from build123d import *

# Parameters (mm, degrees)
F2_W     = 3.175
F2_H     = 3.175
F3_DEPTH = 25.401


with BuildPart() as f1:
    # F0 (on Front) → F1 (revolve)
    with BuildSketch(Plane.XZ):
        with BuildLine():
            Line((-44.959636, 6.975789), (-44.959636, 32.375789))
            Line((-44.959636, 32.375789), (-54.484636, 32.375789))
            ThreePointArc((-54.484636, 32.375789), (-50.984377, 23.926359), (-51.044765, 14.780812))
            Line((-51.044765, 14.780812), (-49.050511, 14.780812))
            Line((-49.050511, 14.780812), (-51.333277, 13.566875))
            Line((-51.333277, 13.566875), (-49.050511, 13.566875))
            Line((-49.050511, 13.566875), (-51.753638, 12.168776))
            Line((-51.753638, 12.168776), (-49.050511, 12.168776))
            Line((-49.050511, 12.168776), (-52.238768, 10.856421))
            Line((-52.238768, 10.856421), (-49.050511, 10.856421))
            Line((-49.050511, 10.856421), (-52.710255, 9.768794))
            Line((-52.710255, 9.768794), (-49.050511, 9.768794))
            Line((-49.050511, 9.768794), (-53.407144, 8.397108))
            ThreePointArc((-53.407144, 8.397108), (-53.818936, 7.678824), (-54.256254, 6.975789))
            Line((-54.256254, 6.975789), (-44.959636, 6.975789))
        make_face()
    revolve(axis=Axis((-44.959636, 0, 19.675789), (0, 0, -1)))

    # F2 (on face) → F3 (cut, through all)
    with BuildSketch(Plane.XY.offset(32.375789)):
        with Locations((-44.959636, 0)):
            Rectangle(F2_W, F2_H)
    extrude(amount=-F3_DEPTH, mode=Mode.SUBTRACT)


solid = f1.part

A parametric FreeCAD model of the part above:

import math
import FreeCAD as App
import Part
import Sketcher
from FreeCAD import Vector
Q = App.Units.Quantity


def add_polygon(sketch, points):
    """Adds a closed chain of lines whose ends are joined by coincident constraints."""
    first, n = sketch.GeometryCount, len(points)
    for a, b in zip(points, points[1:] + points[:1]):
        sketch.addGeometry(Part.LineSegment(App.Vector(*a, 0), App.Vector(*b, 0)), False)
    for i in range(n):
        sketch.addConstraint(Sketcher.Constraint("Coincident", first + i, 2, first + (i + 1) % n, 1))

doc = App.newDocument("Part")
body = doc.addObject("PartDesign::Body", "Body")

sketch1 = doc.addObject("Sketcher::SketchObject", "Sketch")
body.addObject(sketch1)
sketch1.AttachmentSupport = (doc.XZ_Plane, [""])
sketch1.MapMode = "FlatFace"
sketch1.addGeometry(Part.LineSegment(Vector(-45, 7, 0), Vector(-45, 32.4, 0)), False)
sketch1.addGeometry(Part.LineSegment(Vector(-45, 32.4, 0), Vector(-54.5, 32.4, 0)), False)
sketch1.addGeometry(Part.ArcOfCircle(Part.Circle(Vector(-73.6, 19.5, 0), Vector(0, 0, 1), 23.1), math.radians(-12), math.radians(34)), False)
sketch1.addGeometry(Part.LineSegment(Vector(-51, 14.8, 0), Vector(-49.1, 14.8, 0)), False)
sketch1.addGeometry(Part.LineSegment(Vector(-49.1, 14.8, 0), Vector(-51.3, 13.6, 0)), False)
sketch1.addGeometry(Part.LineSegment(Vector(-51.3, 13.6, 0), Vector(-49.1, 13.6, 0)), False)
sketch1.addGeometry(Part.LineSegment(Vector(-49.1, 13.6, 0), Vector(-51.8, 12.2, 0)), False)
sketch1.addGeometry(Part.LineSegment(Vector(-51.8, 12.2, 0), Vector(-49.1, 12.2, 0)), False)
sketch1.addGeometry(Part.LineSegment(Vector(-49.1, 12.2, 0), Vector(-52.2, 10.9, 0)), False)
sketch1.addGeometry(Part.LineSegment(Vector(-52.2, 10.9, 0), Vector(-49.1, 10.9, 0)), False)
sketch1.addGeometry(Part.LineSegment(Vector(-49.1, 10.9, 0), Vector(-52.7, 9.8, 0)), False)
sketch1.addGeometry(Part.LineSegment(Vector(-52.7, 9.8, 0), Vector(-49.1, 9.8, 0)), False)
sketch1.addGeometry(Part.LineSegment(Vector(-49.1, 9.8, 0), Vector(-53.4, 8.4, 0)), False)
sketch1.addGeometry(Part.ArcOfCircle(Part.Circle(Vector(-73.6, 19.5, 0), Vector(0, 0, 1), 23.1), math.radians(-32.91), math.radians(-28.8)), False)
sketch1.addGeometry(Part.LineSegment(Vector(-54.3, 7, 0), Vector(-45, 7, 0)), False)
sketch1.addGeometry(Part.LineSegment(Vector(-45, 32.4, 0), Vector(-45, 7, 0)), True)
sketch1.addConstraint(Sketcher.Constraint("Coincident", 0, 2, 1, 1))
sketch1.addConstraint(Sketcher.Constraint("Coincident", 1, 2, 2, 2))
sketch1.addConstraint(Sketcher.Constraint("Coincident", 2, 1, 3, 1))
sketch1.addConstraint(Sketcher.Constraint("Coincident", 3, 2, 4, 1))
sketch1.addConstraint(Sketcher.Constraint("Coincident", 4, 2, 5, 1))
sketch1.addConstraint(Sketcher.Constraint("Coincident", 5, 2, 6, 1))
sketch1.addConstraint(Sketcher.Constraint("Coincident", 6, 2, 7, 1))
sketch1.addConstraint(Sketcher.Constraint("Coincident", 7, 2, 8, 1))
sketch1.addConstraint(Sketcher.Constraint("Coincident", 8, 2, 9, 1))
sketch1.addConstraint(Sketcher.Constraint("Coincident", 9, 2, 10, 1))
sketch1.addConstraint(Sketcher.Constraint("Coincident", 10, 2, 11, 1))
sketch1.addConstraint(Sketcher.Constraint("Coincident", 11, 2, 12, 1))
sketch1.addConstraint(Sketcher.Constraint("Coincident", 12, 2, 13, 2))
sketch1.addConstraint(Sketcher.Constraint("Coincident", 13, 1, 14, 1))
sketch1.addConstraint(Sketcher.Constraint("Coincident", 14, 2, 0, 1))
sketch1.addConstraint(Sketcher.Constraint("Vertical", 0))
sketch1.addConstraint(Sketcher.Constraint("Horizontal", 1))
sketch1.addConstraint(Sketcher.Constraint("Horizontal", 3))
sketch1.addConstraint(Sketcher.Constraint("Horizontal", 5))
sketch1.addConstraint(Sketcher.Constraint("Horizontal", 7))
sketch1.addConstraint(Sketcher.Constraint("Horizontal", 9))
sketch1.addConstraint(Sketcher.Constraint("Horizontal", 11))
sketch1.addConstraint(Sketcher.Constraint("Horizontal", 14))
sketch1.addConstraint(Sketcher.Constraint("Vertical", 15))
sketch1.addConstraint(Sketcher.Constraint("Coincident", 15, 1, 0, 2))
sketch1.addConstraint(Sketcher.Constraint("Horizontal", 13, 1, 15, 2))
sketch1.addConstraint(Sketcher.Constraint("Vertical", 3, 2, 5, 2))
sketch1.addConstraint(Sketcher.Constraint("Vertical", 5, 2, 7, 2))
sketch1.addConstraint(Sketcher.Constraint("Vertical", 7, 2, 9, 2))
sketch1.addConstraint(Sketcher.Constraint("Vertical", 9, 2, 11, 2))
sketch1.addConstraint(Sketcher.Constraint("DistanceY", 0, 1, 0, 2, Q("1 in")))
sketch1.addConstraint(Sketcher.Constraint("DistanceX", 1, 2, 1, 1, Q("0.375 in")))
sketch1.addConstraint(Sketcher.Constraint("Radius", 2, Q("23.054962 mm")))
sketch1.addConstraint(Sketcher.Constraint("Radius", 13, Q("23.054608 mm")))
sketch1.addConstraint(Sketcher.Constraint("DistanceY", 2, 3, 0, 2, Q("12.873 mm")))
sketch1.addConstraint(Sketcher.Constraint("DistanceY", 6, 2, 4, 2, Q("1.398099 mm")))
sketch1.addConstraint(Sketcher.Constraint("DistanceX", 13, 1, 10, 2, Q("1.545999 mm")))
sketch1.addConstraint(Sketcher.Constraint("Distance", 4, Q("2.585472 mm")))
sketch1.addConstraint(Sketcher.Constraint("Distance", 8, Q("3.44779 mm")))
sketch1.addConstraint(Sketcher.Constraint("Distance", 10, Q("3.817939 mm")))
sketch1.addConstraint(Sketcher.Constraint("Distance", 12, Q("4.567469 mm")))
sketch1.addConstraint(Sketcher.Constraint("DistanceX", 3, 1, 3, 2, Q("1.994254 mm")))
sketch1.addConstraint(Sketcher.Constraint("DistanceX", 5, 1, 5, 2, Q("2.282766 mm")))
sketch1.addConstraint(Sketcher.Constraint("DistanceX", 7, 1, 7, 2, Q("2.703127 mm")))
sketch1.addConstraint(Sketcher.Constraint("DistanceX", 9, 1, 9, 2, Q("3.188257 mm")))
sketch1.addConstraint(Sketcher.Constraint("DistanceX", 11, 1, 11, 2, Q("3.659744 mm")))
sketch1.addConstraint(Sketcher.Constraint("DistanceX", 14, 1, 14, 2, Q("9.296618 mm")))
sketch1.addConstraint(Sketcher.Constraint("DistanceY", -1, 1, 2, 3, Q("19.502789 mm")))
sketch1.addConstraint(Sketcher.Constraint("DistanceX", 13, 3, -1, 1, Q("73.610679 mm")))
sketch1.addConstraint(Sketcher.Constraint("DistanceX", 3, 2, -1, 1, Q("49.050511 mm")))
revolution = doc.addObject("PartDesign::Revolution", "Revolution")
body.addObject(revolution)
revolution.Profile = sketch1
revolution.ReferenceAxis = (sketch1, ["Axis0"])
revolution.Angle = 360

sketch2 = doc.addObject("Sketcher::SketchObject", "Sketch001")
body.addObject(sketch2)
sketch2.AttachmentSupport = (doc.XY_Plane, [""])
sketch2.MapMode = "FlatFace"
sketch2.AttachmentOffset = App.Placement(Vector(0, 0, 32.375789), App.Rotation())
add_polygon(sketch2, [(-46.5, 1.6), (-46.5, -1.6), (-43.4, -1.6), (-43.4, 1.6)])
sketch2.addConstraint(Sketcher.Constraint("Vertical", 0))
sketch2.addConstraint(Sketcher.Constraint("Horizontal", 1))
sketch2.addConstraint(Sketcher.Constraint("Vertical", 2))
sketch2.addConstraint(Sketcher.Constraint("Horizontal", 3))
sketch2.addConstraint(Sketcher.Constraint("Equal", 3, 0))
sketch2.addConstraint(Sketcher.Constraint("DistanceX", 1, 1, 1, 2, Q("0.125 in")))
sketch2.addConstraint(Sketcher.Constraint("DistanceY", 0, 2, -1, 1, Q("0.0625 in")))
sketch2.addConstraint(Sketcher.Constraint("DistanceX", 0, 2, -1, 1, Q("46.547136 mm")))
pocket1 = doc.addObject("PartDesign::Pocket", "Pocket")
body.addObject(pocket1)
pocket1.Profile = sketch2
pocket1.Type = "ThroughAll"

doc.recompute()
